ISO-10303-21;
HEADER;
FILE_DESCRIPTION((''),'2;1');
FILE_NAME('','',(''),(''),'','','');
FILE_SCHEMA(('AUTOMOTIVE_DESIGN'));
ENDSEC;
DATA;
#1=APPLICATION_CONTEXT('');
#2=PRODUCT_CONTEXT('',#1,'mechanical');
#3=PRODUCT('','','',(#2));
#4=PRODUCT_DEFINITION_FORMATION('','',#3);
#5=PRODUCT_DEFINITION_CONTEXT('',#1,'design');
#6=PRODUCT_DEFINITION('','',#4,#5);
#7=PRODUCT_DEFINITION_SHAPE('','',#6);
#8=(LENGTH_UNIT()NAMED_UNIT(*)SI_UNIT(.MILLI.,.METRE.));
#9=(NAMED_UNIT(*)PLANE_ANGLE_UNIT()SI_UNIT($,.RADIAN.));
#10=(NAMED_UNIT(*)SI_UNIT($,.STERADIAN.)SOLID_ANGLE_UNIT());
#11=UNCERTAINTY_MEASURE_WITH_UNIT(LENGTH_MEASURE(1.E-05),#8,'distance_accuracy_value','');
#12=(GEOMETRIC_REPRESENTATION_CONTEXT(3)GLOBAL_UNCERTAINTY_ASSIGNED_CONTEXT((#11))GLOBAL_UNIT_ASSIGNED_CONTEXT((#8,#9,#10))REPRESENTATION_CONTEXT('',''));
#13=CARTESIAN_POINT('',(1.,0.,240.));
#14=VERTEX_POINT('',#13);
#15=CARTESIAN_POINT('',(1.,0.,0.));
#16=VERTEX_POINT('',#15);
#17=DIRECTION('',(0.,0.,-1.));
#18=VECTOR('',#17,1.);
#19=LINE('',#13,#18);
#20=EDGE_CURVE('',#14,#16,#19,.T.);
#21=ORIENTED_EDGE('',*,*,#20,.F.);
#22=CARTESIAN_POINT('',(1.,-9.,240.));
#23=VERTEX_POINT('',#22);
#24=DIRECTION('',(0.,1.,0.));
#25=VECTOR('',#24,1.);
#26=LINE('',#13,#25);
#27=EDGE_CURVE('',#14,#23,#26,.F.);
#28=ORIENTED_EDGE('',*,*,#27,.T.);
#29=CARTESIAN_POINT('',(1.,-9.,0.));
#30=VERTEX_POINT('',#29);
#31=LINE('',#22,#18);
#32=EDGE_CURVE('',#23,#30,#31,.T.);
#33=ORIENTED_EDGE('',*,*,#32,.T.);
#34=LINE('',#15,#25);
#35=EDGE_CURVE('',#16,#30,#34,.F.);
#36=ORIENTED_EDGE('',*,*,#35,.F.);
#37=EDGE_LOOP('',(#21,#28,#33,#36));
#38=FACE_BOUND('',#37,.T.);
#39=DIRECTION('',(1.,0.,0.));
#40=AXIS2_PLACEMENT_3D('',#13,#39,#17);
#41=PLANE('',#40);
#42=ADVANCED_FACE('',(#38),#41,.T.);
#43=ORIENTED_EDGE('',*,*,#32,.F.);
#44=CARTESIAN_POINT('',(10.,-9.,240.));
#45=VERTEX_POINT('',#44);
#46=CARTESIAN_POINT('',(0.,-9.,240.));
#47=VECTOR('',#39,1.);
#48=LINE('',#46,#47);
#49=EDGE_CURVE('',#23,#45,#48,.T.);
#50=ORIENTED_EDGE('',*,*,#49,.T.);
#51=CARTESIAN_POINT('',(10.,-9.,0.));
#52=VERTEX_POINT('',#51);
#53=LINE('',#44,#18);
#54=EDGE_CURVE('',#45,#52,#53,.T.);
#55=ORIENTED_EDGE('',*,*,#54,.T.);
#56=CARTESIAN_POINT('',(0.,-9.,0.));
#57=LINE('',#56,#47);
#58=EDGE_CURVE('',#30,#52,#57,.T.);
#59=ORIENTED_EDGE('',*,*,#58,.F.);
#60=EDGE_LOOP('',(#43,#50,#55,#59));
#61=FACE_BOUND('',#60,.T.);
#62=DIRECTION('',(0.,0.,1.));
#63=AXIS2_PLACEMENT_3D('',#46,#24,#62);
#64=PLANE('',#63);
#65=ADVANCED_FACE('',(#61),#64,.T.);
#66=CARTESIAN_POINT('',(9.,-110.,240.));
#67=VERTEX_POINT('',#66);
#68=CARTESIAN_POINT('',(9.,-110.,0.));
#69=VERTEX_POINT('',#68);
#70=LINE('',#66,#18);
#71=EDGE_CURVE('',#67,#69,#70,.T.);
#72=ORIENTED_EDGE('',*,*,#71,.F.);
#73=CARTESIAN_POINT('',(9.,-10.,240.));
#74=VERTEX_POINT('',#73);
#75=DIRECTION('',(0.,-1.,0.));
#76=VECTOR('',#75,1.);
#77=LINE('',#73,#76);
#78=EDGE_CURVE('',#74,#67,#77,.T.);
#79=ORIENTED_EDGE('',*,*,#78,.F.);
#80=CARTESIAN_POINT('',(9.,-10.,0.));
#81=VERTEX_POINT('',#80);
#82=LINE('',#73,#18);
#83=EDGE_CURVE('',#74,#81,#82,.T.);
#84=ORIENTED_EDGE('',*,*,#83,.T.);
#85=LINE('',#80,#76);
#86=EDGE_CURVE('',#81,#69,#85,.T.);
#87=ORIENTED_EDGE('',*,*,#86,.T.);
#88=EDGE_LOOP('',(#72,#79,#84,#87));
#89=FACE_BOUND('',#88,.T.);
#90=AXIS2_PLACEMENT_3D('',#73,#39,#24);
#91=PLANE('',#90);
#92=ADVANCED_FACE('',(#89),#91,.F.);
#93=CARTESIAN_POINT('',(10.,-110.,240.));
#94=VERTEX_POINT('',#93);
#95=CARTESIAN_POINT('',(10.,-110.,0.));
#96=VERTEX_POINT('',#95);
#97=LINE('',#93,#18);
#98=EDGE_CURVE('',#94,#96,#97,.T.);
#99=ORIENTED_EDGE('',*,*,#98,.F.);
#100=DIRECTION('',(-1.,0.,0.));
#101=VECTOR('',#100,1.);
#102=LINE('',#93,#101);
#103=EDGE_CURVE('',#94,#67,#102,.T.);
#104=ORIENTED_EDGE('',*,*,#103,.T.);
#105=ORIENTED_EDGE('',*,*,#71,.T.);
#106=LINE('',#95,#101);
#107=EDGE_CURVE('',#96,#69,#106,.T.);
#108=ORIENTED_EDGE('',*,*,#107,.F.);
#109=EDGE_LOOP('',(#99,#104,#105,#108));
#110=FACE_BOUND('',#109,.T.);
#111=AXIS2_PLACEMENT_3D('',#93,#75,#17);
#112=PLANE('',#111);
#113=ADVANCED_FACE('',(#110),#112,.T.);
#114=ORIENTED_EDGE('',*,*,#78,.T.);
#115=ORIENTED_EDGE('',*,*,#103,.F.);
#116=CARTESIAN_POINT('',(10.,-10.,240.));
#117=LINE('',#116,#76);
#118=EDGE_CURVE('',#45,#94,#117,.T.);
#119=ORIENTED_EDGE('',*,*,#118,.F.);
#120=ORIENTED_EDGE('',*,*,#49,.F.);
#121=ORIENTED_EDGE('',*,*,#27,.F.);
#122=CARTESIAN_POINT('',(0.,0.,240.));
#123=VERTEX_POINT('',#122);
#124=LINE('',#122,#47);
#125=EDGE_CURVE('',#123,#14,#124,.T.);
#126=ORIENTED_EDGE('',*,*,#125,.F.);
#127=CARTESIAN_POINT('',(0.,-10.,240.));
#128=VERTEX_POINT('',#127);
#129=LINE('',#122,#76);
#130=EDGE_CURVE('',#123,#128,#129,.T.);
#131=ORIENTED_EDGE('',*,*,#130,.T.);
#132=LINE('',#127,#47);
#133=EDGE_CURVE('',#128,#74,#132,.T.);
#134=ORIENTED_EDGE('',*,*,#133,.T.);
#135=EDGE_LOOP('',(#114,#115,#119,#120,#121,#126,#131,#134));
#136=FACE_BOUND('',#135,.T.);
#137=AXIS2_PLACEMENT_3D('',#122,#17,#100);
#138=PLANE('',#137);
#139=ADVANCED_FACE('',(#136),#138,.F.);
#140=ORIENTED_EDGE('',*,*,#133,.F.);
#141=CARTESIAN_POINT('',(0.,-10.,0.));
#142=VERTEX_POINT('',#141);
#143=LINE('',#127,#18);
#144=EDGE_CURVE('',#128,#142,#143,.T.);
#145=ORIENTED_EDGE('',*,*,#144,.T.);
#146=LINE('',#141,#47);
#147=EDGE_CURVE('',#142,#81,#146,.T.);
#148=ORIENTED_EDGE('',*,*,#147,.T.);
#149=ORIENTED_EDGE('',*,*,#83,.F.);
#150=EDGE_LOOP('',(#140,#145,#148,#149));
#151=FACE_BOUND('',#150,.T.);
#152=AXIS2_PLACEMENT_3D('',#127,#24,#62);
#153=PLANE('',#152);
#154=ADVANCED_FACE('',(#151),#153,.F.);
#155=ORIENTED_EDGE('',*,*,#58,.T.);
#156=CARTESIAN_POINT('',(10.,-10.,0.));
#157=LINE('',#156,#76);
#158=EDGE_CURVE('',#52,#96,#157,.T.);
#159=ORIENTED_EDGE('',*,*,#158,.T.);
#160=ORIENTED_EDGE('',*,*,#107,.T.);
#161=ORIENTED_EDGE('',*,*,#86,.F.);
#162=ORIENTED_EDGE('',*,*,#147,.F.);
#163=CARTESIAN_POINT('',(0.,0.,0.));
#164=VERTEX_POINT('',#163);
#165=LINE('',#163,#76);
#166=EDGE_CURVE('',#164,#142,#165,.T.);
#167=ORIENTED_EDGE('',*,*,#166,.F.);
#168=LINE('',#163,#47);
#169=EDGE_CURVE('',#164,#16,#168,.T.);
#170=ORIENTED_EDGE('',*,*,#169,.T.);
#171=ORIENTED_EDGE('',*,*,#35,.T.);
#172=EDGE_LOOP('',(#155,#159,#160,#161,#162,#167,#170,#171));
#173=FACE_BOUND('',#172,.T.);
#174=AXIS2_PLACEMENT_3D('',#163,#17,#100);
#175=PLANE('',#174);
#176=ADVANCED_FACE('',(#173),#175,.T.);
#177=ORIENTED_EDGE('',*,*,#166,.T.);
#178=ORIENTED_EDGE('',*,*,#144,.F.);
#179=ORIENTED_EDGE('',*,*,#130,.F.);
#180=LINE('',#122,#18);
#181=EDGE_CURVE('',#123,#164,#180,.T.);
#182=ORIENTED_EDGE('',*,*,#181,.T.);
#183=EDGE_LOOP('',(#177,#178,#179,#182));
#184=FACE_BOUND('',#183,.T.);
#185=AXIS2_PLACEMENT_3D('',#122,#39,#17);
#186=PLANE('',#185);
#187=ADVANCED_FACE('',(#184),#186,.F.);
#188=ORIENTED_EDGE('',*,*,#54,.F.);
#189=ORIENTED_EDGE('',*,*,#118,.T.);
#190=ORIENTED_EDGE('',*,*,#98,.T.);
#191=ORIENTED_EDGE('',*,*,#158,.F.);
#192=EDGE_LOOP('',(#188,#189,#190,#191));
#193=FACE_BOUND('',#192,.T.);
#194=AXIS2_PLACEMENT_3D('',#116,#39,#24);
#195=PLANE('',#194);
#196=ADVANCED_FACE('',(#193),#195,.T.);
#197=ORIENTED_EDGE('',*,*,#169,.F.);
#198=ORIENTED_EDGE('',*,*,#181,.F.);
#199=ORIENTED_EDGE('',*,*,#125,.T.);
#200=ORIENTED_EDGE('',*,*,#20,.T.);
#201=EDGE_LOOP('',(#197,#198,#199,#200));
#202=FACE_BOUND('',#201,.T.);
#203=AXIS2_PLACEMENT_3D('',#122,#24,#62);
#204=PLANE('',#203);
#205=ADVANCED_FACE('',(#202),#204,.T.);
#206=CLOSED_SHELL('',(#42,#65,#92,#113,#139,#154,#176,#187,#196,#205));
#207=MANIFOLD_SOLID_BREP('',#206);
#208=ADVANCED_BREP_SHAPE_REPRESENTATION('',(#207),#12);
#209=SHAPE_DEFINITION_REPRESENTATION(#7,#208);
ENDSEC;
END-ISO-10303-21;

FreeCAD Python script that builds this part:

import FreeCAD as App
import Part
import Sketcher

V = App.Vector
Q = App.Units.Quantity

doc = App.newDocument("Part")
params = doc.addObject("Spreadsheet::Sheet", "Params")
for row, (alias, value) in enumerate([
    ("sketch1_width", "9 mm"),
    ("sketch1_width2", "1 mm"),
    ("sketch1_height", "10 mm"),
    ("sketch1_height2", "100 mm"),
    ("pad1_length", "240 mm"),
], start=1):
    params.set(f"A{row}", alias)
    params.set(f"B{row}", "=" + value)
    params.setAlias(f"B{row}", alias)

body = doc.addObject("PartDesign::Body", "Body")

# Sketch on XY plane
sketch1 = doc.addObject("Sketcher::SketchObject", "Sketch")
body.addObject(sketch1)
sketch1.AttachmentSupport = (doc.XY_Plane, [""])
sketch1.MapMode = "FlatFace"
sketch1.addGeometry([
    Part.LineSegment(V(0, 0, 0), V(0, -10, 0)),  # 0
    Part.LineSegment(V(0, -10, 0), V(9, -10, 0)),  # 1
    Part.LineSegment(V(9, -10, 0), V(9, -110, 0)),  # 2
    Part.LineSegment(V(9, -110, 0), V(10, -110, 0)),  # 3
    Part.LineSegment(V(10, -110, 0), V(10, -9, 0)),  # 4
    Part.LineSegment(V(10, -9, 0), V(1, -9, 0)),  # 5
    Part.LineSegment(V(1, -9, 0), V(1, 0, 0)),  # 6
    Part.LineSegment(V(1, 0, 0), V(0, 0, 0)),  # 7
], False)
sketch1.addConstraint([
    Sketcher.Constraint("Coincident", 0, 2, 1, 1),
    Sketcher.Constraint("Coincident", 1, 2, 2, 1),
    Sketcher.Constraint("Coincident", 2, 2, 3, 1),
    Sketcher.Constraint("Coincident", 3, 2, 4, 1),
    Sketcher.Constraint("Coincident", 4, 2, 5, 1),
    Sketcher.Constraint("Coincident", 5, 2, 6, 1),
    Sketcher.Constraint("Coincident", 6, 2, 7, 1),
    Sketcher.Constraint("Coincident", 7, 2, 0, 1),
    Sketcher.Constraint("Vertical", 0),
    Sketcher.Constraint("Horizontal", 1),
    Sketcher.Constraint("Vertical", 2),
    Sketcher.Constraint("Horizontal", 3),
    Sketcher.Constraint("Vertical", 4),
    Sketcher.Constraint("Horizontal", 5),
    Sketcher.Constraint("Vertical", 6),
    Sketcher.Constraint("Horizontal", 7),
    Sketcher.Constraint("Coincident", 7, 2, -1, 1),
    Sketcher.Constraint("Equal", 1, 5),
    Sketcher.Constraint("Equal", 5, 6),
    Sketcher.Constraint("DistanceX", 1, 1, 1, 2, Q("9 mm")),
    Sketcher.Constraint("DistanceX", 3, 1, 3, 2, Q("1 mm")),
    Sketcher.Constraint("DistanceY", 0, 2, 0, 1, Q("10 mm")),
    Sketcher.Constraint("DistanceY", 2, 2, 2, 1, Q("100 mm")),
])
sketch1.setExpression("Constraints[19]", "Params.sketch1_width")
sketch1.setExpression("Constraints[20]", "Params.sketch1_width2")
sketch1.setExpression("Constraints[21]", "Params.sketch1_height")
sketch1.setExpression("Constraints[22]", "Params.sketch1_height2")
pad1 = doc.addObject("PartDesign::Pad", "Pad")
body.addObject(pad1)
pad1.Profile = sketch1
pad1.setExpression("Length", "Params.pad1_length")

doc.recompute()
